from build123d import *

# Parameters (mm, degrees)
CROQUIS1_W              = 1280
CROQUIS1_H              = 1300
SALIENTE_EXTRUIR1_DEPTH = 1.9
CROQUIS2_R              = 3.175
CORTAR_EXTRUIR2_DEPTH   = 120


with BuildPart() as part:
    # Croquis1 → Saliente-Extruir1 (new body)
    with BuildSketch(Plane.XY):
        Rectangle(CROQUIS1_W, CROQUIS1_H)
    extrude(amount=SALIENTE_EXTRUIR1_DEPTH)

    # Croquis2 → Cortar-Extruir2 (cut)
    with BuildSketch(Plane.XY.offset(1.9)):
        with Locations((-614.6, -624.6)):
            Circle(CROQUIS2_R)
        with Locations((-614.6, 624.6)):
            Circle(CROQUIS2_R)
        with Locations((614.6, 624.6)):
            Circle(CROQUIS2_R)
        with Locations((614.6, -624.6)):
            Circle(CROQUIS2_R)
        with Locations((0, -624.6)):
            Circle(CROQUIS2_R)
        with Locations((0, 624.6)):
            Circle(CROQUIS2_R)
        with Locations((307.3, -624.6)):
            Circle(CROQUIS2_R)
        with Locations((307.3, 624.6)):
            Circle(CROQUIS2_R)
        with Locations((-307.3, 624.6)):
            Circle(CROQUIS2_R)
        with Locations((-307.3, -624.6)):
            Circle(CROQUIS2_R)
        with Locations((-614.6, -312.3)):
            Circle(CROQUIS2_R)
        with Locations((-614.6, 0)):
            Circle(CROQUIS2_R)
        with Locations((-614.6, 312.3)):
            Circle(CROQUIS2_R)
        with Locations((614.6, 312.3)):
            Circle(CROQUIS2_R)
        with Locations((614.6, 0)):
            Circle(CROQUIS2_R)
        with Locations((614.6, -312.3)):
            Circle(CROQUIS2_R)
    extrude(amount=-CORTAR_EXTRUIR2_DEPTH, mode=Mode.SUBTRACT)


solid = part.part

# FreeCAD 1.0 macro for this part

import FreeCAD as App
import Part
import Sketcher


def add_polygon(sketch, points):
    """Adds a closed chain of lines whose ends are joined by coincident constraints."""
    first, n = sketch.GeometryCount, len(points)
    for a, b in zip(points, points[1:] + points[:1]):
        sketch.addGeometry(Part.LineSegment(App.Vector(*a, 0), App.Vector(*b, 0)), False)
    for i in range(n):
        sketch.addConstraint(Sketcher.Constraint("Coincident", first + i, 2, first + (i + 1) % n, 1))

doc = App.newDocument("Part")
params = doc.addObject("Spreadsheet::Sheet", "Params")
for row, (alias, value) in enumerate([
    ("sketch1_width", "1280 mm"),
    ("sketch1_height", "1300 mm"),
    ("pad1_length", "1.9 mm"),
    ("sketch2_diameter", "6.35 mm"),
    ("pocket1_length", "120 mm"),
], start=1):
    params.set(f"A{row}", alias)
    params.set(f"B{row}", "=" + value)
    params.setAlias(f"B{row}", alias)

body = doc.addObject("PartDesign::Body", "Body")

sketch1 = body.newObject("Sketcher::SketchObject", "Sketch")
sketch1.AttachmentSupport = (doc.getObject("XY_Plane"), [""])
sketch1.MapMode = "FlatFace"
add_polygon(sketch1, [(-640, 650), (-640, -650), (640, -650), (640, 650)])
sketch1.addConstraint([
    Sketcher.Constraint("Vertical", 0),
    Sketcher.Constraint("Horizontal", 1),
    Sketcher.Constraint("Vertical", 2),
    Sketcher.Constraint("Horizontal", 3),
    Sketcher.Constraint("Symmetric", 0, 2, 2, 2, -1, 1),
    Sketcher.Constraint("DistanceX", 1, 1, 1, 2, 1280.0),
    Sketcher.Constraint("DistanceY", 0, 2, 0, 1, 1300.0),
])
sketch1.setExpression("Constraints[9]", "Params.sketch1_width")
sketch1.setExpression("Constraints[10]", "Params.sketch1_height")
pad1 = body.newObject("PartDesign::Pad", "Pad")
pad1.Profile = sketch1
pad1.setExpression("Length", "Params.pad1_length")

sketch2 = body.newObject("Sketcher::SketchObject", "Sketch001")
sketch2.AttachmentSupport = (doc.getObject("XY_Plane"), [""])
sketch2.MapMode = "FlatFace"
sketch2.AttachmentOffset = App.Placement(App.Vector(0, 0, 1.9), App.Rotation())
sketch2.addGeometry([
    Part.Circle(App.Vector(-614.6, -624.6, 0), App.Vector(0, 0, 1), 3.2),
    Part.Circle(App.Vector(-614.6, 624.6, 0), App.Vector(0, 0, 1), 3.2),
    Part.Circle(App.Vector(614.6, 624.6, 0), App.Vector(0, 0, 1), 3.2),
    Part.Circle(App.Vector(614.6, -624.6, 0), App.Vector(0, 0, 1), 3.2),
    Part.Circle(App.Vector(0, -624.6, 0), App.Vector(0, 0, 1), 3.2),
    Part.Circle(App.Vector(0, 624.6, 0), App.Vector(0, 0, 1), 3.2),
    Part.Circle(App.Vector(307.3, -624.6, 0), App.Vector(0, 0, 1), 3.2),
    Part.Circle(App.Vector(307.3, 624.6, 0), App.Vector(0, 0, 1), 3.2),
    Part.Circle(App.Vector(-307.3, 624.6, 0), App.Vector(0, 0, 1), 3.2),
    Part.Circle(App.Vector(-307.3, -624.6, 0), App.Vector(0, 0, 1), 3.2),
    Part.Circle(App.Vector(-614.6, -312.3, 0), App.Vector(0, 0, 1), 3.2),
    Part.Circle(App.Vector(-614.6, 0, 0), App.Vector(0, 0, 1), 3.2),
    Part.Circle(App.Vector(-614.6, 312.3, 0), App.Vector(0, 0, 1), 3.2),
    Part.Circle(App.Vector(614.6, 312.3, 0), App.Vector(0, 0, 1), 3.2),
    Part.Circle(App.Vector(614.6, 0, 0), App.Vector(0, 0, 1), 3.2),
    Part.Circle(App.Vector(614.6, -312.3, 0), App.Vector(0, 0, 1), 3.2),
], False)
sketch2.addConstraint([
    Sketcher.Constraint("Equal", 0, 1),
    Sketcher.Constraint("Equal", 1, 2),
    Sketcher.Constraint("Equal", 2, 3),
    Sketcher.Constraint("Equal", 3, 4),
    Sketcher.Constraint("Equal", 4, 5),
    Sketcher.Constraint("Equal", 5, 6),
    Sketcher.Constraint("Equal", 6, 7),
    Sketcher.Constraint("Equal", 7, 8),
    Sketcher.Constraint("Equal", 8, 9),
    Sketcher.Constraint("Equal", 9, 10),
    Sketcher.Constraint("Equal", 10, 11),
    Sketcher.Constraint("Equal", 11, 12),
    Sketcher.Constraint("Equal", 12, 13),
    Sketcher.Constraint("Equal", 13, 14),
    Sketcher.Constraint("Equal", 14, 15),
    Sketcher.Constraint("Symmetric", 0, 3, 2, 3, -1, 1),
    Sketcher.Constraint("Symmetric", 1, 3, 3, 3, -1, 1),
    Sketcher.Constraint("Symmetric", 4, 3, 5, 3, -1, 1),
    Sketcher.Constraint("Symmetric", 6, 3, 8, 3, -1, 1),
    Sketcher.Constraint("Symmetric", 7, 3, 9, 3, -1, 1),
    Sketcher.Constraint("Symmetric", 10, 3, 13, 3, -1, 1),
    Sketcher.Constraint("Symmetric", 11, 3, 14, 3, -1, 1),
    Sketcher.Constraint("Symmetric", 12, 3, 15, 3, -1, 1),
    Sketcher.Constraint("Symmetric", 1, 3, 2, 3, -2),
    Sketcher.Constraint("Symmetric", 7, 3, 8, 3, -2),
    Sketcher.Constraint("Symmetric", 12, 3, 13, 3, -2),
    Sketcher.Constraint("PointOnObject", 4, 3, -2),
    Sketcher.Constraint("PointOnObject", 11, 3, -1),
    Sketcher.Constraint("Horizontal", 3, 3, 4, 3),
    Sketcher.Constraint("Horizontal", 4, 3, 6, 3),
    Sketcher.Constraint("Vertical", 1, 3, 10, 3),
    Sketcher.Constraint("Vertical", 10, 3, 11, 3),
    Sketcher.Constraint("Diameter", 0, 6.35),
    Sketcher.Constraint("DistanceX", 0, 3, -1, 1, 614.6),
    Sketcher.Constraint("DistanceY", 0, 3, -1, 1, 624.6),
    Sketcher.Constraint("DistanceX", -1, 1, 6, 3, 307.3),
    Sketcher.Constraint("DistanceY", 10, 3, -1, 1, 312.3),
])
sketch2.setExpression("Constraints[32]", "Params.sketch2_diameter")
pocket1 = body.newObject("PartDesign::Pocket", "Pocket")
pocket1.Profile = sketch2
pocket1.setExpression("Length", "Params.pocket1_length")

doc.recompute()
